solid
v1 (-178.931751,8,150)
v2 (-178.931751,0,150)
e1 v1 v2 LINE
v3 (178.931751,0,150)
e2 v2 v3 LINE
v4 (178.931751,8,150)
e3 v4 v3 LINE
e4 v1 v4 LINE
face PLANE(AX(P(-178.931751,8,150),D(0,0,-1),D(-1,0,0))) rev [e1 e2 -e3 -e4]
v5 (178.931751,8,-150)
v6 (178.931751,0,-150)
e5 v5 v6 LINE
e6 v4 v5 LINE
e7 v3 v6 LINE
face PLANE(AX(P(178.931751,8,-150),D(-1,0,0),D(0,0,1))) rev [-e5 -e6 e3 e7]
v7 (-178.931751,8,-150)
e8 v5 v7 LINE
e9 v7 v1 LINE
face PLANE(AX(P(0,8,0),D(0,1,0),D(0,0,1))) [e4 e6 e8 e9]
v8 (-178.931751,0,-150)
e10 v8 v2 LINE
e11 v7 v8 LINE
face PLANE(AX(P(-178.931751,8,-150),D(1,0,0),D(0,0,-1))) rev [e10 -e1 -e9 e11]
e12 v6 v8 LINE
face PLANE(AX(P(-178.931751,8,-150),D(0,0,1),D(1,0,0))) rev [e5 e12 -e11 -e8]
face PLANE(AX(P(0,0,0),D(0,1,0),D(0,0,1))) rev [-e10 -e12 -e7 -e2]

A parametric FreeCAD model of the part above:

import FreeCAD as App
import Part
import Sketcher
Q = App.Units.Quantity


def add_polygon(sketch, points):
    """Adds a closed chain of lines whose ends are joined by coincident constraints."""
    first, n = sketch.GeometryCount, len(points)
    for a, b in zip(points, points[1:] + points[:1]):
        sketch.addGeometry(Part.LineSegment(App.Vector(*a, 0), App.Vector(*b, 0)), False)
    for i in range(n):
        sketch.addConstraint(Sketcher.Constraint("Coincident", first + i, 2, first + (i + 1) % n, 1))

doc = App.newDocument("Part")
body = doc.addObject("PartDesign::Body", "Body")

# Sketch on XZ plane
sketch1 = doc.addObject("Sketcher::SketchObject", "Sketch")
body.addObject(sketch1)
sketch1.AttachmentSupport = (doc.XZ_Plane, [""])
sketch1.MapMode = "FlatFace"
add_polygon(sketch1, [(-179, -150), (-179, 150), (179, 150), (179, -150)])  # lines 0-3
sketch1.addConstraint([
    Sketcher.Constraint("Vertical", 0),
    Sketcher.Constraint("Horizontal", 1),
    Sketcher.Constraint("Vertical", 2),
    Sketcher.Constraint("Horizontal", 3),
    Sketcher.Constraint("Symmetric", 0, 2, 2, 2, -1, 1),
    Sketcher.Constraint("DistanceY", 0, 1, 0, 2, Q("300 mm")),
    Sketcher.Constraint("DistanceX", 1, 1, 1, 2, Q("357.863501 mm")),
])
pad1 = doc.addObject("PartDesign::Pad", "Pad")
body.addObject(pad1)
pad1.Profile = sketch1
pad1.Length = 8
pad1.Reversed = True

doc.recompute()
